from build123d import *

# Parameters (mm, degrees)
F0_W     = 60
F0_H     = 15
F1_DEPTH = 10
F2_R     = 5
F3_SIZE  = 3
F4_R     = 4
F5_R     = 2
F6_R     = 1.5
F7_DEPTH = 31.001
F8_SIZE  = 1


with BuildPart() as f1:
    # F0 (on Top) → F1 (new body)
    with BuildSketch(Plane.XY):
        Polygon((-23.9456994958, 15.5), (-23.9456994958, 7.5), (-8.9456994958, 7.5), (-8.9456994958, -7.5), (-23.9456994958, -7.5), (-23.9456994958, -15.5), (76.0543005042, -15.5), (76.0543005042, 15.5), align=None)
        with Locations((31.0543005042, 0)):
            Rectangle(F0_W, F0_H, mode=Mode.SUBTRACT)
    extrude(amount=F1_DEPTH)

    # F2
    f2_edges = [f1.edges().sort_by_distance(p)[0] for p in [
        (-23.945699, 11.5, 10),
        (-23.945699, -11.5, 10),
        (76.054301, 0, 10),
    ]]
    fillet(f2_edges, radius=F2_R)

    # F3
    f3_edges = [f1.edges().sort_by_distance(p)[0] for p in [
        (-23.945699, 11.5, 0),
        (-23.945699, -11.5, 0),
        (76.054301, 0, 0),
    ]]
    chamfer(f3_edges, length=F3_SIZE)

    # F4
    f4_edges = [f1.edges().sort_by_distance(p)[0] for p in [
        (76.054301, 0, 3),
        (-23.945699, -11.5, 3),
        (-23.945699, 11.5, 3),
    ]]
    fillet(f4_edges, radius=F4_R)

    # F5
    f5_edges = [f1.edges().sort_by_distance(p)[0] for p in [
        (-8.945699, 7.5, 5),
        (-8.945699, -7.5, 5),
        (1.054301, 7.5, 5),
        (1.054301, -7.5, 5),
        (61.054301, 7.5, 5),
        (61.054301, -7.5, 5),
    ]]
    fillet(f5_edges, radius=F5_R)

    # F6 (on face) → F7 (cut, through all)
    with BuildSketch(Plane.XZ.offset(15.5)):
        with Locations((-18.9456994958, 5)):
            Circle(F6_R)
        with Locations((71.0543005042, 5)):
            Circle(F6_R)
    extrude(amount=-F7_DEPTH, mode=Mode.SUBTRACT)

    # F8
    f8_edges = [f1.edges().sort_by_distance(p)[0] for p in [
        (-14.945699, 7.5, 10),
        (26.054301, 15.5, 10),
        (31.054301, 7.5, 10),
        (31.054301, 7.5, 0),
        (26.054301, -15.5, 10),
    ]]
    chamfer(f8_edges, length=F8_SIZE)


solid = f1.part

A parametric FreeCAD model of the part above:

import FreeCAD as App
import Part
import Sketcher
from FreeCAD import Vector
Q = App.Units.Quantity


def edges_at(feature, points):
    """Names of the edges that pass closest to the given points."""
    edges = feature.Shape.Edges
    near = lambda p: min(range(len(edges)), key=lambda i: edges[i].distToShape(Part.Vertex(*p))[0])
    return sorted({f"Edge{near(p) + 1}" for p in points})


def add_polygon(sketch, points):
    """Adds a closed chain of lines whose ends are joined by coincident constraints."""
    first, n = sketch.GeometryCount, len(points)
    for a, b in zip(points, points[1:] + points[:1]):
        sketch.addGeometry(Part.LineSegment(App.Vector(*a, 0), App.Vector(*b, 0)), False)
    for i in range(n):
        sketch.addConstraint(Sketcher.Constraint("Coincident", first + i, 2, first + (i + 1) % n, 1))

doc = App.newDocument("Part")
body = doc.addObject("PartDesign::Body", "Body")

# Sketch on XY plane
sketch1 = body.newObject("Sketcher::SketchObject", "Sketch")
sketch1.AttachmentSupport = (doc.getObject("XY_Plane"), [""])
sketch1.MapMode = "FlatFace"
add_polygon(sketch1, [(-24, 16), (-24, 8), (-9, 8), (-9, -8), (-24, -8), (-24, -16), (76, -16), (76, 16)])  # lines 0-7
add_polygon(sketch1, [(61, -8), (1, -8), (1, 8), (61, 8)])  # lines 8-11
sketch1.addConstraint(Sketcher.Constraint("Vertical", 0))
sketch1.addConstraint(Sketcher.Constraint("Horizontal", 1))
sketch1.addConstraint(Sketcher.Constraint("Vertical", 2))
sketch1.addConstraint(Sketcher.Constraint("Horizontal", 3))
sketch1.addConstraint(Sketcher.Constraint("Vertical", 4))
sketch1.addConstraint(Sketcher.Constraint("Horizontal", 5))
sketch1.addConstraint(Sketcher.Constraint("Vertical", 6))
sketch1.addConstraint(Sketcher.Constraint("Horizontal", 7))
sketch1.addConstraint(Sketcher.Constraint("Horizontal", 8))
sketch1.addConstraint(Sketcher.Constraint("Vertical", 9))
sketch1.addConstraint(Sketcher.Constraint("Horizontal", 10))
sketch1.addConstraint(Sketcher.Constraint("Vertical", 11))
sketch1.addConstraint(Sketcher.Constraint("Symmetric", 0, 2, 3, 2, -1))
sketch1.addConstraint(Sketcher.Constraint("Horizontal", 3, 2, 8, 2))
sketch1.addConstraint(Sketcher.Constraint("Horizontal", 1, 2, 9, 2))
sketch1.addConstraint(Sketcher.Constraint("Equal", 3, 2))
sketch1.addConstraint(Sketcher.Constraint("Equal", 0, 4))
sketch1.addConstraint(Sketcher.Constraint("DistanceX", 1, 1, 1, 2, Q("15 mm")))
sketch1.addConstraint(Sketcher.Constraint("DistanceX", 5, 1, 5, 2, Q("100 mm")))
sketch1.addConstraint(Sketcher.Constraint("DistanceX", 8, 2, 8, 1, Q("60 mm")))
sketch1.addConstraint(Sketcher.Constraint("DistanceY", 0, 2, 0, 1, Q("8 mm")))
sketch1.addConstraint(Sketcher.Constraint("DistanceX", 2, 2, 8, 2, Q("10 mm")))
sketch1.addConstraint(Sketcher.Constraint("DistanceX", 0, 2, -1, 1, Q("23.945699 mm")))
pad1 = body.newObject("PartDesign::Pad", "Pad")
pad1.Profile = sketch1
pad1.Length = 10
doc.recompute()

fillet = body.newObject("PartDesign::Fillet", "Fillet")
fillet.Base = (pad1, edges_at(pad1, [(-23.946, 11.5, 10), (-23.946, -11.5, 10), (76.054, 0, 10)]))
fillet.Radius = 5
doc.recompute()

chamfer = body.newObject("PartDesign::Chamfer", "Chamfer")
chamfer.Base = (fillet, edges_at(fillet, [(-23.946, 11.5, 0), (-23.946, -11.5, 0), (76.054, 0, 0)]))
chamfer.Size = 3
doc.recompute()

fillet2 = body.newObject("PartDesign::Fillet", "Fillet001")
fillet2.Base = (chamfer, edges_at(chamfer, [(76.054, 0, 3), (-23.946, -11.5, 3), (-23.946, 11.5, 3)]))
fillet2.Radius = 4
doc.recompute()

fillet3 = body.newObject("PartDesign::Fillet", "Fillet002")
fillet3.Base = (fillet2, edges_at(fillet2, [
    (-8.946, 7.5, 5),
    (-8.946, -7.5, 5),
    (1.054, 7.5, 5),
    (1.054, -7.5, 5),
    (61.054, 7.5, 5),
    (61.054, -7.5, 5),
]))
fillet3.Radius = 2

# Sketch on XZ plane
sketch2 = body.newObject("Sketcher::SketchObject", "Sketch001")
sketch2.AttachmentSupport = (doc.getObject("XZ_Plane"), [""])
sketch2.MapMode = "FlatFace"
sketch2.AttachmentOffset = App.Placement(Vector(0, 0, 15.5), App.Rotation())
sketch2.addGeometry(Part.Circle(Vector(-18.9, 5, 0), Vector(0, 0, 1), 1.5), False)
sketch2.addGeometry(Part.Circle(Vector(71.1, 5, 0), Vector(0, 0, 1), 1.5), False)
sketch2.addConstraint(Sketcher.Constraint("Equal", 0, 1))
sketch2.addConstraint(Sketcher.Constraint("Horizontal", 0, 3, 1, 3))
sketch2.addConstraint(Sketcher.Constraint("Diameter", 0, Q("3 mm")))
sketch2.addConstraint(Sketcher.Constraint("DistanceY", -1, 1, 0, 3, Q("5 mm")))
sketch2.addConstraint(Sketcher.Constraint("DistanceX", 0, 3, 1, 3, Q("90 mm")))
sketch2.addConstraint(Sketcher.Constraint("DistanceX", 0, 3, -1, 1, Q("18.945699 mm")))
pocket1 = body.newObject("PartDesign::Pocket", "Pocket")
pocket1.Profile = sketch2
pocket1.Type = "ThroughAll"
doc.recompute()

chamfer2 = body.newObject("PartDesign::Chamfer", "Chamfer001")
chamfer2.Base = (pocket1, edges_at(pocket1, [
    (-14.946, 7.5, 10),
    (26.054, 15.5, 10),
    (31.054, 7.5, 10),
    (31.054, 7.5, 0),
    (26.054, -15.5, 10),
]))
chamfer2.Size = 1

doc.recompute()
